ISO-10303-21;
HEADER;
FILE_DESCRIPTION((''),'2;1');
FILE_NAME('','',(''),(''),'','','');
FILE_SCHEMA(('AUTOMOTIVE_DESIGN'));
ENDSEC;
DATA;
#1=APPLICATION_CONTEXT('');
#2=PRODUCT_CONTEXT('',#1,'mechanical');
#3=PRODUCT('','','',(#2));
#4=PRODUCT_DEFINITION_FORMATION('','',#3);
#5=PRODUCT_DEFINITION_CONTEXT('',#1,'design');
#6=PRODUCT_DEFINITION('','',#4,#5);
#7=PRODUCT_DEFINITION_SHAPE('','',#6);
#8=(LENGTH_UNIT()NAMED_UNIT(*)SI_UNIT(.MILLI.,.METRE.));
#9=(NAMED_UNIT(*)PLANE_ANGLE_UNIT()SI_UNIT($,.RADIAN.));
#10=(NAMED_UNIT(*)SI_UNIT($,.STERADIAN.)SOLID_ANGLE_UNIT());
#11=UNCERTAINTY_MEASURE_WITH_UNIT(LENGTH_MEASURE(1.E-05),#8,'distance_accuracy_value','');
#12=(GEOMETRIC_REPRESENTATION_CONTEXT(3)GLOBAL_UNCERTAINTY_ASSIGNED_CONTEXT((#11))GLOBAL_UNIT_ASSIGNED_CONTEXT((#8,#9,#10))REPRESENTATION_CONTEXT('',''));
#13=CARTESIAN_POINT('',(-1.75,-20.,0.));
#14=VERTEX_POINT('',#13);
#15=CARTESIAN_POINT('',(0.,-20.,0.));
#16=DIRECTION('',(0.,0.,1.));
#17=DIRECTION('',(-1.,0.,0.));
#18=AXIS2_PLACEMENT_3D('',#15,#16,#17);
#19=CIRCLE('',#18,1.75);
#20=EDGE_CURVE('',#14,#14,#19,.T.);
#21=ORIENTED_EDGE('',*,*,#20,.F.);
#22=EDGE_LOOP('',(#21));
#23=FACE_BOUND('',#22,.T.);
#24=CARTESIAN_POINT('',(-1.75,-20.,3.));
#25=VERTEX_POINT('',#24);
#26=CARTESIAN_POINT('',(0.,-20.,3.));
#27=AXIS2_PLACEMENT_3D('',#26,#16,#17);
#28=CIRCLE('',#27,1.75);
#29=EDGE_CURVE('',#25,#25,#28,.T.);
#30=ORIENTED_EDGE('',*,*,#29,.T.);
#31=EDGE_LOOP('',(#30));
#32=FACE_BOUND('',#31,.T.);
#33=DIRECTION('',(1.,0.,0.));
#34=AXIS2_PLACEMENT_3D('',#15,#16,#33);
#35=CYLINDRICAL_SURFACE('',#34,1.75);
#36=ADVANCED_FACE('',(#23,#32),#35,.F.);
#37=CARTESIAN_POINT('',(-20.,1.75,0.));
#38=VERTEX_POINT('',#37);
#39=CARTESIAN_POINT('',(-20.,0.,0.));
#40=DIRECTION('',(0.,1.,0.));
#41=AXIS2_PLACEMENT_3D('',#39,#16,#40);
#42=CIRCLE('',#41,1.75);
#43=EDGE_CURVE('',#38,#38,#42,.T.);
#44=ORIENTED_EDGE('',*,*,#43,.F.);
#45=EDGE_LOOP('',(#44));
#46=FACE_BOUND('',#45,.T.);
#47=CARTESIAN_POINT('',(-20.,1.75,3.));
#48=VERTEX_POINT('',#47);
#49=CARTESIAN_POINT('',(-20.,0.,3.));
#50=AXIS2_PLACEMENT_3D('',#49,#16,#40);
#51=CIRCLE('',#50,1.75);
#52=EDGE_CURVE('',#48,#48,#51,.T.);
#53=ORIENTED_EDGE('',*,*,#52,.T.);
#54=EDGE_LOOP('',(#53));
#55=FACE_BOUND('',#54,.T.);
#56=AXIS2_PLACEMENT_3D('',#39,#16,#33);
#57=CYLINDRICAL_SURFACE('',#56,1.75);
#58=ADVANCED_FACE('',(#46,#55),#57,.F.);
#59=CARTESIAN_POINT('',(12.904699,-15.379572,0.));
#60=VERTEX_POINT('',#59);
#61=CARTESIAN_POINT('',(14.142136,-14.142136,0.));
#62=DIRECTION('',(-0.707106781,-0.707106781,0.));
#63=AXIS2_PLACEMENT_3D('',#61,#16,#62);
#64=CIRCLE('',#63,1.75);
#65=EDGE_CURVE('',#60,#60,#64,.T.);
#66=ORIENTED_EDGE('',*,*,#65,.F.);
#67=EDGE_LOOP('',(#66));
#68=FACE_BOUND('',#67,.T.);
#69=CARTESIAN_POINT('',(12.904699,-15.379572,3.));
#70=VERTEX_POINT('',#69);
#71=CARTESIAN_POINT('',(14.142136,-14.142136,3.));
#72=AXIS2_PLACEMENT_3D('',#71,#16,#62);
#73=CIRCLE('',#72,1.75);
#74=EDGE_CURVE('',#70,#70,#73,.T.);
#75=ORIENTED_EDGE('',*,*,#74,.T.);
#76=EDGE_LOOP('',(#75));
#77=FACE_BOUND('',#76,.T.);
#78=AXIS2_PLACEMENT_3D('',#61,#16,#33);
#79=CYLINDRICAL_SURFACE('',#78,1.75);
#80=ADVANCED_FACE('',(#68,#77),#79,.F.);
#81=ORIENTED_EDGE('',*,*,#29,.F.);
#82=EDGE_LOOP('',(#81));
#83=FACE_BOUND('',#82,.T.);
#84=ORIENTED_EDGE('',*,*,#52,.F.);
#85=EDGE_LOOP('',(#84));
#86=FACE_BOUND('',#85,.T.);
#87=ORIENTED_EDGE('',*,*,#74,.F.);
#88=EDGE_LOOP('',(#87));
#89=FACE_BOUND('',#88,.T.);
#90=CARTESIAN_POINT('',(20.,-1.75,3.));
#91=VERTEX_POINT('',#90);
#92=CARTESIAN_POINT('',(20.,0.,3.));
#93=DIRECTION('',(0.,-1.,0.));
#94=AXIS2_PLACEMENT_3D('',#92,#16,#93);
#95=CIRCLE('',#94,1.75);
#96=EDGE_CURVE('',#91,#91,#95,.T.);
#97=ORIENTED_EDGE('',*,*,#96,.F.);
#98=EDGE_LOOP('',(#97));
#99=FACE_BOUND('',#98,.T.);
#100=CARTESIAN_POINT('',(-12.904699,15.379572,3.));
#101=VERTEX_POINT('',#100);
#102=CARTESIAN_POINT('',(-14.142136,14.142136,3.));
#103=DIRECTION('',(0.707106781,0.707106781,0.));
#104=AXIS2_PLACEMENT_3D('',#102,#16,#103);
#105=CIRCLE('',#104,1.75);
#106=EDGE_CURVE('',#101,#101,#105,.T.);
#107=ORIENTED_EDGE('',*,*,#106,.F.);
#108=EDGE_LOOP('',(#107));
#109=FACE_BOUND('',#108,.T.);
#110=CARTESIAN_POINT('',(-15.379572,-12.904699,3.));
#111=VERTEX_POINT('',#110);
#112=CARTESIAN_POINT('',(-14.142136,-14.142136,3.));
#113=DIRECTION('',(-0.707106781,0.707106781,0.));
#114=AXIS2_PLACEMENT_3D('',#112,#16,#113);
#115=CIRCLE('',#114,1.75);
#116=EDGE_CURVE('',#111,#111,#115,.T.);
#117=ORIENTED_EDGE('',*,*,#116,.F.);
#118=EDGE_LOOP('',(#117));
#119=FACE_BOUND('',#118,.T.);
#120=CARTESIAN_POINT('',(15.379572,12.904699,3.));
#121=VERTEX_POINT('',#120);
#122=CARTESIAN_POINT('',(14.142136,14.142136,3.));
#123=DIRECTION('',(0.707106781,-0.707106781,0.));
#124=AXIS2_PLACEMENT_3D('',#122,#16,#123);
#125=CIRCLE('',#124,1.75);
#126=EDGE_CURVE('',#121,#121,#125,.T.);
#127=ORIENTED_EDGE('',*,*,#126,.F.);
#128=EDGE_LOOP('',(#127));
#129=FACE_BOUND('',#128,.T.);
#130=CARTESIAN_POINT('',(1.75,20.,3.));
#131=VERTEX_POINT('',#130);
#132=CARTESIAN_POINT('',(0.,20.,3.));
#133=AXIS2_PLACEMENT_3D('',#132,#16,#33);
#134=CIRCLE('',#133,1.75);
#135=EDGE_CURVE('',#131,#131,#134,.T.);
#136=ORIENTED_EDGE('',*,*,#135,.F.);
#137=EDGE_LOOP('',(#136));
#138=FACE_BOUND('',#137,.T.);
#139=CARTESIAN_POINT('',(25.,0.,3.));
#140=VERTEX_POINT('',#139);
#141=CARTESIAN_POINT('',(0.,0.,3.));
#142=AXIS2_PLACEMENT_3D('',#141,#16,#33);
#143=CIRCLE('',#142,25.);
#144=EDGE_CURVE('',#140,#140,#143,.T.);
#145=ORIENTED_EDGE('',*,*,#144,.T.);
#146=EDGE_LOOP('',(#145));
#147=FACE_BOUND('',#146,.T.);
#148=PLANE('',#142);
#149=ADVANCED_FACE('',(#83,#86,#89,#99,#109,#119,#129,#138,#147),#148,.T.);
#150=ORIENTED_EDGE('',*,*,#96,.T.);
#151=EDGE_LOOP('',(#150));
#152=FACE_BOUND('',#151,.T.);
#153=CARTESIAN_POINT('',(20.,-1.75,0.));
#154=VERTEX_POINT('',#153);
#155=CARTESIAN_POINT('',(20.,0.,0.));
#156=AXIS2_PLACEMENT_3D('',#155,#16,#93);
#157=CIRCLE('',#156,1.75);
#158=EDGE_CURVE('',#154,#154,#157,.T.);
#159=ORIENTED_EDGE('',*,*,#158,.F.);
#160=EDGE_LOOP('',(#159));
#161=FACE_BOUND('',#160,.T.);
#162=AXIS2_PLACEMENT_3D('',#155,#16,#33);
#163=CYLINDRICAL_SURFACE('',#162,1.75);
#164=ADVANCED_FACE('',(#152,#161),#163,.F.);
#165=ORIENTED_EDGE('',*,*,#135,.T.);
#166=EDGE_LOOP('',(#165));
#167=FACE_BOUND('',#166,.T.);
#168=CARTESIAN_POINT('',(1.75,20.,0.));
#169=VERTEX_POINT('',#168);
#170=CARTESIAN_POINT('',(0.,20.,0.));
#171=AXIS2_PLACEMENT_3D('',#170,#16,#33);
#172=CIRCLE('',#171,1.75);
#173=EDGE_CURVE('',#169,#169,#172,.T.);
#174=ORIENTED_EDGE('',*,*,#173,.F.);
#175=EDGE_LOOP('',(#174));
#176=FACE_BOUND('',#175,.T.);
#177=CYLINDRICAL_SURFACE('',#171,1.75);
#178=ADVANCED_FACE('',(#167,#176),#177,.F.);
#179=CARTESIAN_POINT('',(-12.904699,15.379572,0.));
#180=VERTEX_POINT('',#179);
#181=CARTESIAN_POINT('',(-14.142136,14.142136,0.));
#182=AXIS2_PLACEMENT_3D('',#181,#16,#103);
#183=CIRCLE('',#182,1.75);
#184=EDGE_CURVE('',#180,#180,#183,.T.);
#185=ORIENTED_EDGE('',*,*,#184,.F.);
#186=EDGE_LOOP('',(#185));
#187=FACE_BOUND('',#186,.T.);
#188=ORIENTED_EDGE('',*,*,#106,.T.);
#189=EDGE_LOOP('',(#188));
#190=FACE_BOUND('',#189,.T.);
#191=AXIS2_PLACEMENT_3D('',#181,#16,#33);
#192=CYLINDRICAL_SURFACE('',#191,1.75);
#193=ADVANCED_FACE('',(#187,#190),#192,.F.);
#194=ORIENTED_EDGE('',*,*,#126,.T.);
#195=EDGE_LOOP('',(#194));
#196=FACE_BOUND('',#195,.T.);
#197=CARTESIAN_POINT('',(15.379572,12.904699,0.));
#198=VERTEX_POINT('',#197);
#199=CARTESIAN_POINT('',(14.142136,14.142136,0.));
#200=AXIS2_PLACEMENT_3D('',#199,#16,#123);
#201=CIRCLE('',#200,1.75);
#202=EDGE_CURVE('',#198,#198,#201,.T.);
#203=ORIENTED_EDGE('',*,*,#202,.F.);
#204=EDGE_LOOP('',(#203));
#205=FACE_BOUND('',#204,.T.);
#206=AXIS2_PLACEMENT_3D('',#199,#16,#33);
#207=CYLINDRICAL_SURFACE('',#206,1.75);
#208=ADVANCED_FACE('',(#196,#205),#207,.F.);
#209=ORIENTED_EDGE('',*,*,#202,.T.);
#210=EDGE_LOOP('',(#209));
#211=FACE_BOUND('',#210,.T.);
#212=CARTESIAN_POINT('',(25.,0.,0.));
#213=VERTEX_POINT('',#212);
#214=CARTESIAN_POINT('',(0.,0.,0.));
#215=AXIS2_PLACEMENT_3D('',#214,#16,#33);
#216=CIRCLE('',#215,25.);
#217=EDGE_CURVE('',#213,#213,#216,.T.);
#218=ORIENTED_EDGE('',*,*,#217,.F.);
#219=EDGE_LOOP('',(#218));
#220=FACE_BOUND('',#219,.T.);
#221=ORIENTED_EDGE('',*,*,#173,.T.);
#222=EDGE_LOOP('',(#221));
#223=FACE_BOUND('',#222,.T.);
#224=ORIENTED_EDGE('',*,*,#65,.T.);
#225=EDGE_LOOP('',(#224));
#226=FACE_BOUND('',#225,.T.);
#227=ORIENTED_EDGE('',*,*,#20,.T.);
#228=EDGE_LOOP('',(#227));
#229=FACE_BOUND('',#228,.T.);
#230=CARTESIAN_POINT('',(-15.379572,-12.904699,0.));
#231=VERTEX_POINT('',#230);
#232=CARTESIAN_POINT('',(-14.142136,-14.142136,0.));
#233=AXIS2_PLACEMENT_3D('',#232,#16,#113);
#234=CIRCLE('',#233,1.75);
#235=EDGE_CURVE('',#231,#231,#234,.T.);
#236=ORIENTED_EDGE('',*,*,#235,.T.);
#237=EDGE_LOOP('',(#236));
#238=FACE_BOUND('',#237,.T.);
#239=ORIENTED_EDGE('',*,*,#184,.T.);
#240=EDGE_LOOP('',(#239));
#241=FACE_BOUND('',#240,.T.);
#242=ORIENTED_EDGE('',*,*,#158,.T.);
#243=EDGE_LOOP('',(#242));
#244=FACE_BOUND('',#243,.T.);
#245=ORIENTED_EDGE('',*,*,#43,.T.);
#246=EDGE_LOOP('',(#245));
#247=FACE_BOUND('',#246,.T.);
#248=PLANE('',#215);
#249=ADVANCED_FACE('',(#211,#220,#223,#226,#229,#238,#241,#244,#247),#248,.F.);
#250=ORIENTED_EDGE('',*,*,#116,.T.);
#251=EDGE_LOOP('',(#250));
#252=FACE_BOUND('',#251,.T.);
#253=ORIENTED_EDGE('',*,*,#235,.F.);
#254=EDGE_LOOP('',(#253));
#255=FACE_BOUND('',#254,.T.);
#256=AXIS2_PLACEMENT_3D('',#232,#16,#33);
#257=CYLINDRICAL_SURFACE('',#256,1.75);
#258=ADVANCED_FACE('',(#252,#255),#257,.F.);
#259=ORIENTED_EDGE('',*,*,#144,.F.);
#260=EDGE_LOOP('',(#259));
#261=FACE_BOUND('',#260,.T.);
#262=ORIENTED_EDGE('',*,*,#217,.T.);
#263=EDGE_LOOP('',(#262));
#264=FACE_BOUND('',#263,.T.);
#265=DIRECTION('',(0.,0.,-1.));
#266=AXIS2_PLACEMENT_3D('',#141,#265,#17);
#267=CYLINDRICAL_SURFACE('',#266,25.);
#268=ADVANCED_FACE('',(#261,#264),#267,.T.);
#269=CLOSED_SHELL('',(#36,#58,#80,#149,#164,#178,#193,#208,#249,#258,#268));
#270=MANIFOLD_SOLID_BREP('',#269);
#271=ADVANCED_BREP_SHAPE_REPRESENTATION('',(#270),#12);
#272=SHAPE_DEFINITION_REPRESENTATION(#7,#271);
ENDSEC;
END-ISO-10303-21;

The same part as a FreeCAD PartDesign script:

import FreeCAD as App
import Part
import Sketcher

V = App.Vector
Q = App.Units.Quantity

doc = App.newDocument("Part")
body = doc.addObject("PartDesign::Body", "Body")

# Sketch on XY plane
sketch1 = body.newObject("Sketcher::SketchObject", "Sketch")
sketch1.AttachmentSupport = (doc.getObject("XY_Plane"), [""])
sketch1.MapMode = "FlatFace"
sketch1.addGeometry(Part.Circle(V(0, 0, 0), V(0, 0, 1), 25), False)
sketch1.addConstraint(Sketcher.Constraint("Coincident", 0, 3, -1, 1))
sketch1.addConstraint(Sketcher.Constraint("Diameter", 0, Q("50 mm")))
pad1 = body.newObject("PartDesign::Pad", "Pad")
pad1.Profile = sketch1
pad1.Length = 3

# Sketch on XY plane
sketch2 = body.newObject("Sketcher::SketchObject", "Sketch001")
sketch2.AttachmentSupport = (doc.getObject("XY_Plane"), [""])
sketch2.MapMode = "FlatFace"
sketch2.AttachmentOffset = App.Placement(V(0, 0, 3), App.Rotation())
sketch2.addGeometry(Part.Circle(V(0, 20, 0), V(0, 0, 1), 1.75), False)
sketch2.addConstraint(Sketcher.Constraint("PointOnObject", 0, 3, -2))
sketch2.addConstraint(Sketcher.Constraint("Diameter", 0, Q("3.5 mm")))
sketch2.addConstraint(Sketcher.Constraint("DistanceY", -1, 1, 0, 3, Q("20 mm")))
pocket1 = body.newObject("PartDesign::Pocket", "Pocket")
pocket1.Profile = sketch2
pocket1.Length = 3
doc.recompute()

polarpattern = body.newObject("PartDesign::PolarPattern", "PolarPattern")
polarpattern.Originals = [pocket1]
polarpattern.Axis = (doc.getObject("Z_Axis"), [""])
polarpattern.Angle = 360
polarpattern.Occurrences = 8
body.Tip = polarpattern

doc.recompute()
